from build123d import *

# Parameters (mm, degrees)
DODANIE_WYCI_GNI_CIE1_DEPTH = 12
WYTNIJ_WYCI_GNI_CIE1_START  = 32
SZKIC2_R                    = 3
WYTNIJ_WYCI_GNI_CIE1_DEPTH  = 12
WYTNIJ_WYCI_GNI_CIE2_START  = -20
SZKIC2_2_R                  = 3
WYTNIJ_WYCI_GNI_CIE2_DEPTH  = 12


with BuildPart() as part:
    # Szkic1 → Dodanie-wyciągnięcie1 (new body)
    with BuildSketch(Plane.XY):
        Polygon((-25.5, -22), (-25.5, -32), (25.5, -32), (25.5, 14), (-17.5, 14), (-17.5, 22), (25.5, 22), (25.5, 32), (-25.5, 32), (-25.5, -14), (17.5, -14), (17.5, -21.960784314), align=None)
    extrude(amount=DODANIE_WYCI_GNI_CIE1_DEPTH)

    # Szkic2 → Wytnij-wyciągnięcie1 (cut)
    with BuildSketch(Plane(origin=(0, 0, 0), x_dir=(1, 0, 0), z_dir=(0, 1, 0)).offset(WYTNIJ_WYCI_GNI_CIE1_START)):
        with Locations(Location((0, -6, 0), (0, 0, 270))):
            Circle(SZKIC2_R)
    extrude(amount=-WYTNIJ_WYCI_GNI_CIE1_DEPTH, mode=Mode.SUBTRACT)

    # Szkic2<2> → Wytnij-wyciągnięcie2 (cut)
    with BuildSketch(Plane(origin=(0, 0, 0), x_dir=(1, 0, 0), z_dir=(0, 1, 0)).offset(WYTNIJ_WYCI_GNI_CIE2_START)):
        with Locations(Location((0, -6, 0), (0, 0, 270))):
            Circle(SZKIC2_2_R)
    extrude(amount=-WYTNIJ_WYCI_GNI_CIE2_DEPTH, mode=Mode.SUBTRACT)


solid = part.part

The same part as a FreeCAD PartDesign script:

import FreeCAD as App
import Part
import Sketcher

V = App.Vector


def add_polygon(sketch, points):
    """Adds a closed chain of lines whose ends are joined by coincident constraints."""
    first, n = sketch.GeometryCount, len(points)
    for a, b in zip(points, points[1:] + points[:1]):
        sketch.addGeometry(Part.LineSegment(App.Vector(*a, 0), App.Vector(*b, 0)), False)
    for i in range(n):
        sketch.addConstraint(Sketcher.Constraint("Coincident", first + i, 2, first + (i + 1) % n, 1))

doc = App.newDocument("Part")
body = doc.addObject("PartDesign::Body", "Body")

# Sketch on XY plane
sketch1 = body.newObject("Sketcher::SketchObject", "Sketch")
sketch1.AttachmentSupport = (doc.getObject("XY_Plane"), [""])
sketch1.MapMode = "FlatFace"
add_polygon(sketch1, [(-25.5, -22), (-25.5, -32), (25.5, -32), (25.5, 14), (-17.5, 14), (-17.5, 22), (25.5, 22), (25.5, 32), (-25.5, 32), (-25.5, -14), (17.5, -14), (17.5, -21.960784)])  # lines 0-11
sketch1.addConstraint(Sketcher.Constraint("Vertical", 0))
sketch1.addConstraint(Sketcher.Constraint("Horizontal", 1))
sketch1.addConstraint(Sketcher.Constraint("Vertical", 2))
sketch1.addConstraint(Sketcher.Constraint("Horizontal", 3))
sketch1.addConstraint(Sketcher.Constraint("Vertical", 4))
sketch1.addConstraint(Sketcher.Constraint("Horizontal", 5))
sketch1.addConstraint(Sketcher.Constraint("Vertical", 6))
sketch1.addConstraint(Sketcher.Constraint("Horizontal", 7))
sketch1.addConstraint(Sketcher.Constraint("Vertical", 8))
sketch1.addConstraint(Sketcher.Constraint("Horizontal", 9))
sketch1.addConstraint(Sketcher.Constraint("Vertical", 10))
sketch1.addConstraint(Sketcher.Constraint("Symmetric", 0, 2, 6, 2, -1, 1))
sketch1.addConstraint(Sketcher.Constraint("Symmetric", 2, 2, 8, 2, -1, 1))
sketch1.addConstraint(Sketcher.Constraint("Vertical", 2, 2, 5, 2))
sketch1.addConstraint(Sketcher.Constraint("Equal", 5, 9))
sketch1.addConstraint(Sketcher.Constraint("Equal", 0, 6))
sketch1.addConstraint(Sketcher.Constraint("DistanceX", 1, 1, 1, 2, 51.0))
sketch1.addConstraint(Sketcher.Constraint("DistanceX", 3, 2, 3, 1, 43.0))
sketch1.addConstraint(Sketcher.Constraint("DistanceY", 0, 2, 0, 1, 10.0))
sketch1.addConstraint(Sketcher.Constraint("DistanceY", 2, 1, 2, 2, 46.0))
sketch1.addConstraint(Sketcher.Constraint("DistanceY", 4, 1, 4, 2, 8.0))
sketch1.addConstraint(Sketcher.Constraint("DistanceY", 10, 2, 10, 1, 7.960784))
pad1 = body.newObject("PartDesign::Pad", "Pad")
pad1.Profile = sketch1
pad1.Length = 12

# Sketch on XZ plane
sketch2 = body.newObject("Sketcher::SketchObject", "Sketch001")
sketch2.AttachmentSupport = (doc.getObject("XZ_Plane"), [""])
sketch2.MapMode = "FlatFace"
sketch2.AttachmentOffset = App.Placement(V(0, 0, -32), App.Rotation())
sketch2.addGeometry(Part.Circle(V(0, 6, 0), V(0, 0, 1), 3), False)
sketch2.addConstraint(Sketcher.Constraint("PointOnObject", 0, 3, -2))
sketch2.addConstraint(Sketcher.Constraint("Diameter", 0, 6.0))
sketch2.addConstraint(Sketcher.Constraint("DistanceY", -1, 1, 0, 3, 6.0))
pocket1 = body.newObject("PartDesign::Pocket", "Pocket")
pocket1.Profile = sketch2
pocket1.Length = 12
pocket1.Reversed = True

# Sketch on XZ plane
sketch3 = body.newObject("Sketcher::SketchObject", "Sketch002")
sketch3.AttachmentSupport = (doc.getObject("XZ_Plane"), [""])
sketch3.MapMode = "FlatFace"
sketch3.AttachmentOffset = App.Placement(V(0, 0, 20), App.Rotation())
sketch3.addGeometry(Part.Circle(V(0, 6, 0), V(0, 0, 1), 3), False)
sketch3.addConstraint(Sketcher.Constraint("PointOnObject", 0, 3, -2))
sketch3.addConstraint(Sketcher.Constraint("Diameter", 0, 6.0))
sketch3.addConstraint(Sketcher.Constraint("DistanceY", -1, 1, 0, 3, 6.0))
pocket2 = body.newObject("PartDesign::Pocket", "Pocket001")
pocket2.Profile = sketch3
pocket2.Length = 12
pocket2.Reversed = True

doc.recompute()
